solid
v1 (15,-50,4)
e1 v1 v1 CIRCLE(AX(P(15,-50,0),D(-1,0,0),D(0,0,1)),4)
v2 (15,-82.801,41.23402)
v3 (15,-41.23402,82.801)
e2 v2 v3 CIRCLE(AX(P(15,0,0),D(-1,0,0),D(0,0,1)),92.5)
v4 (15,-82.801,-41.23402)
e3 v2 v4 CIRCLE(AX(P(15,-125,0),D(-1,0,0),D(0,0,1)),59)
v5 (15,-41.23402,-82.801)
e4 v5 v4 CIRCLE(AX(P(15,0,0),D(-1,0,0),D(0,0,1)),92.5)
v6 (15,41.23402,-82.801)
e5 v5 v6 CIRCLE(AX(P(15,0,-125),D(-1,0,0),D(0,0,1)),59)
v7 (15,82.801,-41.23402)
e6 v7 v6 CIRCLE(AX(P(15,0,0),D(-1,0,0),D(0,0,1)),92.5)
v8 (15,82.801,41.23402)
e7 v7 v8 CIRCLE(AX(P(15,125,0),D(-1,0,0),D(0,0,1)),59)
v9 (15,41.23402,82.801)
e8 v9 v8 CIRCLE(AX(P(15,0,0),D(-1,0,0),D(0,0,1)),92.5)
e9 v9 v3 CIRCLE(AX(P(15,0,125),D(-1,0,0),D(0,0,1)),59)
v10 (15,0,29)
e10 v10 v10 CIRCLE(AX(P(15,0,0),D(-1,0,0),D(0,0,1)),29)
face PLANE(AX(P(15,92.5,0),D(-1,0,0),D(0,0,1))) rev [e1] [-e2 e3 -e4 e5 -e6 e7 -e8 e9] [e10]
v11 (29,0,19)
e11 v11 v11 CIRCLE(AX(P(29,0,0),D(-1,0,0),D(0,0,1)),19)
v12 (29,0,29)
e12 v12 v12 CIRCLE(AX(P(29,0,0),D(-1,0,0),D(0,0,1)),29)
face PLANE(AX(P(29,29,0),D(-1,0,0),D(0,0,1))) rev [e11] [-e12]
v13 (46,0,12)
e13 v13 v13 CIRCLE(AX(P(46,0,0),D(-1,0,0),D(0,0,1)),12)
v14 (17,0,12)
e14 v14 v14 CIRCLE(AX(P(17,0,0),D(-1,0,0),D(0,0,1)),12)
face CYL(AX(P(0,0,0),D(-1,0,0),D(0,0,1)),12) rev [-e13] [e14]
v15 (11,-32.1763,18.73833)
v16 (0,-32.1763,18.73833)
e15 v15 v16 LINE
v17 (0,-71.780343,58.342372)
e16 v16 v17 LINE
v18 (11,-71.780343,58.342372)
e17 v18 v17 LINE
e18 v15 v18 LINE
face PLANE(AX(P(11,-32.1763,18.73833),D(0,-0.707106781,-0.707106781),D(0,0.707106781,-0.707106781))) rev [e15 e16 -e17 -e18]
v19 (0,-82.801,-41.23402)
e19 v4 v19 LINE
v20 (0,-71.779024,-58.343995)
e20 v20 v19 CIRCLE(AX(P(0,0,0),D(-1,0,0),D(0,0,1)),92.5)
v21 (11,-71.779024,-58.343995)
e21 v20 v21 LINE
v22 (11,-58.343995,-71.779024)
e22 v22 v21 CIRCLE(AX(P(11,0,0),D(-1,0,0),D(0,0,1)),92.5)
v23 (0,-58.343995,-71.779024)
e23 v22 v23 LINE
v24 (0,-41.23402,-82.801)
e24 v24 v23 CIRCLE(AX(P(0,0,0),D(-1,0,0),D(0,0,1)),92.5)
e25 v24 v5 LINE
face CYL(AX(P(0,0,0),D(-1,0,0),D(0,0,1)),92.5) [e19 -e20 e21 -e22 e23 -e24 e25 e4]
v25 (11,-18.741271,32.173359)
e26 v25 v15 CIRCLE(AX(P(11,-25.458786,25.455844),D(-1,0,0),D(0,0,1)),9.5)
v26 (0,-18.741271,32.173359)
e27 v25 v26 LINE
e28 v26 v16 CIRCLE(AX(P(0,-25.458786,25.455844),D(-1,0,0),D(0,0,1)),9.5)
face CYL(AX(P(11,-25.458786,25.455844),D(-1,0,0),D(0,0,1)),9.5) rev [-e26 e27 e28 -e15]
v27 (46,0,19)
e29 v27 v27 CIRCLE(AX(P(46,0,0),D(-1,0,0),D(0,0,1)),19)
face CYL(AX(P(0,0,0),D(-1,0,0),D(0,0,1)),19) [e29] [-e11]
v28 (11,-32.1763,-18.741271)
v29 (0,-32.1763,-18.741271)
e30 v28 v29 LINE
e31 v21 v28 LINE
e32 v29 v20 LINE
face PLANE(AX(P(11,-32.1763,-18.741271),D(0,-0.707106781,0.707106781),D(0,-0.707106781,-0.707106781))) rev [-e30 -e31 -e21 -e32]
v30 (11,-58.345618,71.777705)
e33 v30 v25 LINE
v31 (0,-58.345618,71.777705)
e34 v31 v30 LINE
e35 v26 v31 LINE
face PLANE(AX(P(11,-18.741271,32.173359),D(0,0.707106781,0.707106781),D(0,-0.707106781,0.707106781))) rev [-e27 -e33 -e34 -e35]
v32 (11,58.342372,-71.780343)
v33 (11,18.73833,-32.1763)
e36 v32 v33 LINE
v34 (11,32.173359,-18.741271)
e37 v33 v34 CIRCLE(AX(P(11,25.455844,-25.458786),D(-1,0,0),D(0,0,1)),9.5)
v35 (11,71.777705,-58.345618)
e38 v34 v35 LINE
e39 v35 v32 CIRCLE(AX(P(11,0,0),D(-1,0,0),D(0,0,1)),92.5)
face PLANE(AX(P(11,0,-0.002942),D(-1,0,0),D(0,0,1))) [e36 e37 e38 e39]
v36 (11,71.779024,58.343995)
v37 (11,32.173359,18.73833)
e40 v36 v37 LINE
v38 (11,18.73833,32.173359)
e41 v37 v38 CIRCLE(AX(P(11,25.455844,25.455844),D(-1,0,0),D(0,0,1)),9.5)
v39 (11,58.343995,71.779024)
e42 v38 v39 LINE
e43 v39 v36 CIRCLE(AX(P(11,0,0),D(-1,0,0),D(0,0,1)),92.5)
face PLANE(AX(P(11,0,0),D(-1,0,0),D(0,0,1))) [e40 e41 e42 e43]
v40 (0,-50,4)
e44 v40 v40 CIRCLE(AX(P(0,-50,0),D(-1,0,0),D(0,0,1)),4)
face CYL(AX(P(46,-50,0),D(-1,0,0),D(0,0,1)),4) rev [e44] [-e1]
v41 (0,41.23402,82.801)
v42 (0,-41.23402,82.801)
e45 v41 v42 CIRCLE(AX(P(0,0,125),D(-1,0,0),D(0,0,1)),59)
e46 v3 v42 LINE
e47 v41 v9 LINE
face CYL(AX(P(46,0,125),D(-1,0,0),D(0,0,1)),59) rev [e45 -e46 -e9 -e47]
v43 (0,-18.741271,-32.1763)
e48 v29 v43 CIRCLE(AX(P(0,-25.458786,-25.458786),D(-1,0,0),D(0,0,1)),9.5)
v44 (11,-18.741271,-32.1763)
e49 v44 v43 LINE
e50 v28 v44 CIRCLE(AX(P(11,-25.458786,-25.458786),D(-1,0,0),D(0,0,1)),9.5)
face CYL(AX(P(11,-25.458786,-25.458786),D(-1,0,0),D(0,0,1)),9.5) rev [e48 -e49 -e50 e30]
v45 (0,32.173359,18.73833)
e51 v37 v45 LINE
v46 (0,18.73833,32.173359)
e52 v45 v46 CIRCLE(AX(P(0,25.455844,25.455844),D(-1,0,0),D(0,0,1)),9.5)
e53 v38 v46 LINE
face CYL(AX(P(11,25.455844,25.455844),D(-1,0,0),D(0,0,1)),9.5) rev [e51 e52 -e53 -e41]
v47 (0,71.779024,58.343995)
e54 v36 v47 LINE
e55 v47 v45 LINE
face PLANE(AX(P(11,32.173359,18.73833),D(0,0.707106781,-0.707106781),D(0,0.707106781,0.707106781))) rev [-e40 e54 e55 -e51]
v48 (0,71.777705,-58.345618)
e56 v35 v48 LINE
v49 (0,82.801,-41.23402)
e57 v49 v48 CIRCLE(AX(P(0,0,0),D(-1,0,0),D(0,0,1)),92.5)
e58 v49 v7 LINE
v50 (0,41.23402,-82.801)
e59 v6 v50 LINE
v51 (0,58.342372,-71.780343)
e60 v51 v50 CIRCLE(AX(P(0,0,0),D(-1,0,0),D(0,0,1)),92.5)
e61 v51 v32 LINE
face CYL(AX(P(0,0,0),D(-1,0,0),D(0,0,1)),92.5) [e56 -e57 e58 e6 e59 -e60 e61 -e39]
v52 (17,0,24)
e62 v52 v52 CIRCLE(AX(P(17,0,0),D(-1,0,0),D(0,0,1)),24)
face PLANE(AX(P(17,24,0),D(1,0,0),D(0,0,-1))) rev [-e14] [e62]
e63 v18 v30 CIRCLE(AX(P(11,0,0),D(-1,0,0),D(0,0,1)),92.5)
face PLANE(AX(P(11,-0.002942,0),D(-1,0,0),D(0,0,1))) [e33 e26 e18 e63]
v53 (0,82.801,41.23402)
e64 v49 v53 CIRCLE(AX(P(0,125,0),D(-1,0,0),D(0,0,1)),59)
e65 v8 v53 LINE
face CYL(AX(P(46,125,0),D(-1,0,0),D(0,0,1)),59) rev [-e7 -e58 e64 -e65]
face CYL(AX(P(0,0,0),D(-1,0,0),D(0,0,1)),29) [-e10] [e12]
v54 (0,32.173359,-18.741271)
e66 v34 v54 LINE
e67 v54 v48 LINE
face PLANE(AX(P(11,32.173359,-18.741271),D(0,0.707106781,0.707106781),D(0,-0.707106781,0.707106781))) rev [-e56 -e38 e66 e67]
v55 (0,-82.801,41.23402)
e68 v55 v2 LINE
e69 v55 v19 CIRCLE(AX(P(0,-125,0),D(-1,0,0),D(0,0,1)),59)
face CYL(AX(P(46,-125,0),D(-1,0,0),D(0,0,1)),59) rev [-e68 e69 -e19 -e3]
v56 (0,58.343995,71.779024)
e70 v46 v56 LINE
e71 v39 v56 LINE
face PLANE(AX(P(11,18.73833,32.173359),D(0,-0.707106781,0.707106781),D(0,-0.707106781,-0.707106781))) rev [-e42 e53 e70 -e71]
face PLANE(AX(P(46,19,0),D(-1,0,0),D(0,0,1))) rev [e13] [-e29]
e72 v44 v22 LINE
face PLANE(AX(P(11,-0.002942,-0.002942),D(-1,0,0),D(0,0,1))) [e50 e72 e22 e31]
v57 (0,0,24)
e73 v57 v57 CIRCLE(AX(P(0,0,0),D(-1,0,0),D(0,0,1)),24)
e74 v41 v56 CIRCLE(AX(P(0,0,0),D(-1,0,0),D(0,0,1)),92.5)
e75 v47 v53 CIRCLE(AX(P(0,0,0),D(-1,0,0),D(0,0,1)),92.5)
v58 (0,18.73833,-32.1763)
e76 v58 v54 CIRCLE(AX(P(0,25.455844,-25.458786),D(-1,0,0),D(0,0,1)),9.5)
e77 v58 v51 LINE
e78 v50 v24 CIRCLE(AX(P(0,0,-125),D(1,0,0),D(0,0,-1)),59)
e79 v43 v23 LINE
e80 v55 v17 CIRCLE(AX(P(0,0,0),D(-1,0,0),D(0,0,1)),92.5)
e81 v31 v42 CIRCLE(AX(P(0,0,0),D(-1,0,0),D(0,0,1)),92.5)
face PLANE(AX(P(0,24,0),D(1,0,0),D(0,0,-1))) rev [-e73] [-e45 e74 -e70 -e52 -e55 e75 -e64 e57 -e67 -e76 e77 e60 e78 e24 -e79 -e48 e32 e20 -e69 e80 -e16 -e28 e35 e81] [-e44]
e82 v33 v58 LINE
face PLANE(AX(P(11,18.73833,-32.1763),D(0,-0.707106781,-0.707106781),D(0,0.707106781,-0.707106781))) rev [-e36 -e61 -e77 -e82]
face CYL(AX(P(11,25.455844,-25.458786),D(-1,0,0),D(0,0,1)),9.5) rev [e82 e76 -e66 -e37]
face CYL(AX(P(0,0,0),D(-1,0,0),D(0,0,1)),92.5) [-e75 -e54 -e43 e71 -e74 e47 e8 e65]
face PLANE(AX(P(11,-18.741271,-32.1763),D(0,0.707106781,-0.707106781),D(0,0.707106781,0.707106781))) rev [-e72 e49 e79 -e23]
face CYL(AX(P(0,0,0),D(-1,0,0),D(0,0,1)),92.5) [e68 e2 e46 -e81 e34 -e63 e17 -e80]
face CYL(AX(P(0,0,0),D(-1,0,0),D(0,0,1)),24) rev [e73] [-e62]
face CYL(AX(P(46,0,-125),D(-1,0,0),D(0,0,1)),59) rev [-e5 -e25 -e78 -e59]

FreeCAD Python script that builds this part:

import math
import FreeCAD as App
import Part
import Sketcher
from FreeCAD import Vector
Q = App.Units.Quantity


def add_polygon(sketch, points):
    """Adds a closed chain of lines whose ends are joined by coincident constraints."""
    first, n = sketch.GeometryCount, len(points)
    for a, b in zip(points, points[1:] + points[:1]):
        sketch.addGeometry(Part.LineSegment(App.Vector(*a, 0), App.Vector(*b, 0)), False)
    for i in range(n):
        sketch.addConstraint(Sketcher.Constraint("Coincident", first + i, 2, first + (i + 1) % n, 1))

doc = App.newDocument("Part")
body = doc.addObject("PartDesign::Body", "Body")

sketch1 = body.newObject("Sketcher::SketchObject", "Sketch")
sketch1.AttachmentSupport = (doc.getObject("XY_Plane"), [""])
sketch1.MapMode = "FlatFace"
add_polygon(sketch1, [(0, 92), (0, 24), (17, 24), (17, 12), (46, 12), (46, 19), (29, 19), (29, 29), (15, 29), (15, 92)])
sketch1.addConstraint([
    Sketcher.Constraint("Vertical", 0),
    Sketcher.Constraint("Horizontal", 1),
    Sketcher.Constraint("Vertical", 2),
    Sketcher.Constraint("Horizontal", 3),
    Sketcher.Constraint("Vertical", 4),
    Sketcher.Constraint("Horizontal", 5),
    Sketcher.Constraint("Vertical", 6),
    Sketcher.Constraint("Horizontal", 7),
    Sketcher.Constraint("Vertical", 8),
    Sketcher.Constraint("Horizontal", 9),
    Sketcher.Constraint("PointOnObject", 0, 2, -2),
    Sketcher.Constraint("Equal", 1, 5),
    Sketcher.Constraint("DistanceX", 1, 1, 1, 2, Q("17 mm")),
    Sketcher.Constraint("DistanceX", 3, 1, 3, 2, Q("29 mm")),
    Sketcher.Constraint("DistanceX", 7, 2, 7, 1, Q("14 mm")),
    Sketcher.Constraint("DistanceY", 2, 2, 2, 1, Q("12 mm")),
    Sketcher.Constraint("DistanceY", 4, 1, 4, 2, Q("7 mm")),
    Sketcher.Constraint("DistanceY", 6, 1, 6, 2, Q("10 mm")),
    Sketcher.Constraint("DistanceY", 0, 2, 0, 1, Q("68.5 mm")),
    Sketcher.Constraint("DistanceY", -1, 1, 0, 2, Q("24 mm")),
])
revolution = body.newObject("PartDesign::Revolution", "Revolution")
revolution.Profile = sketch1
revolution.ReferenceAxis = (sketch1, ["H_Axis"])
revolution.Angle = 360

sketch2 = body.newObject("Sketcher::SketchObject", "Sketch001")
sketch2.AttachmentSupport = (doc.getObject("YZ_Plane"), [""])
sketch2.MapMode = "FlatFace"
sketch2.addGeometry([
    Part.Circle(Vector(125, 0, 0), Vector(0, 0, 1), 59),
    Part.Circle(Vector(0, 125, 0), Vector(0, 0, 1), 59),
    Part.Circle(Vector(-125, 0, 0), Vector(0, 0, 1), 59),
    Part.Circle(Vector(0, -125, 0), Vector(0, 0, 1), 59),
], False)
sketch2.addConstraint([
    Sketcher.Constraint("Equal", 0, 1),
    Sketcher.Constraint("Equal", 1, 2),
    Sketcher.Constraint("Equal", 2, 3),
    Sketcher.Constraint("Symmetric", 0, 3, 2, 3, -1, 1),
    Sketcher.Constraint("Symmetric", 1, 3, 3, 3, -1, 1),
    Sketcher.Constraint("PointOnObject", 0, 3, -1),
    Sketcher.Constraint("PointOnObject", 1, 3, -2),
    Sketcher.Constraint("Diameter", 0, Q("118 mm")),
    Sketcher.Constraint("DistanceX", -1, 1, 0, 3, Q("125 mm")),
    Sketcher.Constraint("DistanceY", -1, 1, 1, 3, Q("125 mm")),
])
pocket1 = body.newObject("PartDesign::Pocket", "Pocket")
pocket1.Profile = sketch2
pocket1.Type = "ThroughAll"
pocket1.Reversed = True

sketch3 = body.newObject("Sketcher::SketchObject", "Sketch002")
sketch3.AttachmentSupport = (doc.getObject("YZ_Plane"), [""])
sketch3.MapMode = "FlatFace"
sketch3.AttachmentOffset = App.Placement(Vector(0, 0, 11), App.Rotation())
sketch3.addGeometry([
    Part.LineSegment(Vector(72, 58, 0), Vector(32, 19, 0)),
    Part.ArcOfCircle(Part.Circle(Vector(25, 25, 0), Vector(0, 0, 1), 10), math.radians(135), math.radians(315)),
    Part.LineSegment(Vector(19, 32, 0), Vector(58, 72, 0)),
    Part.ArcOfCircle(Part.Circle(Vector(0, 0, 0), Vector(0, 0, 1), 92), math.radians(39.11), math.radians(50.89)),
    Part.LineSegment(Vector(-58, 72, 0), Vector(-19, 32, 0)),
    Part.ArcOfCircle(Part.Circle(Vector(-25, 25, 0), Vector(0, 0, 1), 10), math.radians(-135), math.radians(45)),
    Part.LineSegment(Vector(-32, 19, 0), Vector(-72, 58, 0)),
    Part.ArcOfCircle(Part.Circle(Vector(0, 0, 0), Vector(0, 0, 1), 92), math.radians(129.11), math.radians(140.89)),
    Part.LineSegment(Vector(-72, -58, 0), Vector(-32, -19, 0)),
    Part.ArcOfCircle(Part.Circle(Vector(-25, -25, 0), Vector(0, 0, 1), 10), math.radians(-45), math.radians(135)),
    Part.LineSegment(Vector(-19, -32, 0), Vector(-58, -72, 0)),
    Part.ArcOfCircle(Part.Circle(Vector(0, 0, 0), Vector(0, 0, 1), 92), math.radians(-140.89), math.radians(-129.11)),
    Part.LineSegment(Vector(58, -72, 0), Vector(19, -32, 0)),
    Part.ArcOfCircle(Part.Circle(Vector(25, -25, 0), Vector(0, 0, 1), 10), math.radians(45), math.radians(225)),
    Part.LineSegment(Vector(32, -19, 0), Vector(72, -58, 0)),
    Part.ArcOfCircle(Part.Circle(Vector(0, 0, 0), Vector(0, 0, 1), 92), math.radians(-50.89), math.radians(-39.11)),
], False)
sketch3.addConstraint([
    Sketcher.Constraint("Tangent", 0, 2, 1, 2),
    Sketcher.Constraint("Tangent", 1, 1, 2, 1),
    Sketcher.Constraint("Coincident", 2, 2, 3, 2),
    Sketcher.Constraint("Coincident", 3, 1, 0, 1),
    Sketcher.Constraint("Tangent", 4, 2, 5, 2),
    Sketcher.Constraint("Tangent", 5, 1, 6, 1),
    Sketcher.Constraint("Coincident", 6, 2, 7, 2),
    Sketcher.Constraint("Coincident", 7, 1, 4, 1),
    Sketcher.Constraint("Tangent", 8, 2, 9, 2),
    Sketcher.Constraint("Tangent", 9, 1, 10, 1),
    Sketcher.Constraint("Coincident", 10, 2, 11, 2),
    Sketcher.Constraint("Coincident", 11, 1, 8, 1),
    Sketcher.Constraint("Tangent", 12, 2, 13, 2),
    Sketcher.Constraint("Tangent", 13, 1, 14, 1),
    Sketcher.Constraint("Coincident", 14, 2, 15, 2),
    Sketcher.Constraint("Coincident", 15, 1, 12, 1),
    Sketcher.Constraint("Coincident", 3, 3, -1, 1),
    Sketcher.Constraint("Equal", 1, 5),
    Sketcher.Constraint("Equal", 3, 7),
    Sketcher.Constraint("Equal", 5, 9),
    Sketcher.Constraint("Equal", 7, 11),
    Sketcher.Constraint("Equal", 9, 13),
    Sketcher.Constraint("Equal", 11, 15),
    Sketcher.Constraint("PointOnObject", 7, 3, -1),
    Sketcher.Constraint("PointOnObject", 15, 3, -2),
    Sketcher.Constraint("Parallel", 0, 2),
    Sketcher.Constraint("Perpendicular", 2, 4),
    Sketcher.Constraint("Parallel", 4, 6),
    Sketcher.Constraint("Perpendicular", 6, 8),
    Sketcher.Constraint("Parallel", 8, 10),
    Sketcher.Constraint("Perpendicular", 10, 12),
    Sketcher.Constraint("Parallel", 12, 14),
    Sketcher.Constraint("Horizontal", 1, 3, 5, 3),
    Sketcher.Constraint("Horizontal", 9, 3, 13, 3),
    Sketcher.Constraint("Horizontal", 11, 3, 15, 3),
    Sketcher.Constraint("Horizontal", 1, 1, 4, 2),
    Sketcher.Constraint("Horizontal", 3, 1, 6, 2),
    Sketcher.Constraint("Horizontal", 11, 1, 14, 2),
    Sketcher.Constraint("Vertical", 5, 3, 9, 3),
    Sketcher.Constraint("Vertical", 7, 3, 11, 3),
    Sketcher.Constraint("Vertical", 7, 1, 10, 2),
    Sketcher.Constraint("Equal", 0, 2),
    Sketcher.Constraint("Radius", 1, Q("9.5 mm")),
    Sketcher.Constraint("Radius", 3, Q("92.5 mm")),
    Sketcher.Constraint("DistanceX", 5, 1, -1, 1, Q("32.1763 mm")),
    Sketcher.Constraint("DistanceY", 9, 1, -1, 1, Q("32.1763 mm")),
    Sketcher.Constraint("Distance", 0, Q("56.010869 mm")),
])
pocket2 = body.newObject("PartDesign::Pocket", "Pocket001")
pocket2.Profile = sketch3
pocket2.Length = 11

sketch4 = body.newObject("Sketcher::SketchObject", "Sketch003")
sketch4.AttachmentSupport = (doc.getObject("YZ_Plane"), [""])
sketch4.MapMode = "FlatFace"
sketch4.addGeometry(Part.Circle(Vector(-50, 0, 0), Vector(0, 0, 1), 4), False)
sketch4.addConstraint([
    Sketcher.Constraint("PointOnObject", 0, 3, -1),
    Sketcher.Constraint("Diameter", 0, Q("8 mm")),
    Sketcher.Constraint("DistanceX", 0, 3, -1, 1, Q("50 mm")),
])
pocket3 = body.newObject("PartDesign::Pocket", "Pocket002")
pocket3.Profile = sketch4
pocket3.Type = "ThroughAll"
pocket3.Reversed = True

doc.recompute()
